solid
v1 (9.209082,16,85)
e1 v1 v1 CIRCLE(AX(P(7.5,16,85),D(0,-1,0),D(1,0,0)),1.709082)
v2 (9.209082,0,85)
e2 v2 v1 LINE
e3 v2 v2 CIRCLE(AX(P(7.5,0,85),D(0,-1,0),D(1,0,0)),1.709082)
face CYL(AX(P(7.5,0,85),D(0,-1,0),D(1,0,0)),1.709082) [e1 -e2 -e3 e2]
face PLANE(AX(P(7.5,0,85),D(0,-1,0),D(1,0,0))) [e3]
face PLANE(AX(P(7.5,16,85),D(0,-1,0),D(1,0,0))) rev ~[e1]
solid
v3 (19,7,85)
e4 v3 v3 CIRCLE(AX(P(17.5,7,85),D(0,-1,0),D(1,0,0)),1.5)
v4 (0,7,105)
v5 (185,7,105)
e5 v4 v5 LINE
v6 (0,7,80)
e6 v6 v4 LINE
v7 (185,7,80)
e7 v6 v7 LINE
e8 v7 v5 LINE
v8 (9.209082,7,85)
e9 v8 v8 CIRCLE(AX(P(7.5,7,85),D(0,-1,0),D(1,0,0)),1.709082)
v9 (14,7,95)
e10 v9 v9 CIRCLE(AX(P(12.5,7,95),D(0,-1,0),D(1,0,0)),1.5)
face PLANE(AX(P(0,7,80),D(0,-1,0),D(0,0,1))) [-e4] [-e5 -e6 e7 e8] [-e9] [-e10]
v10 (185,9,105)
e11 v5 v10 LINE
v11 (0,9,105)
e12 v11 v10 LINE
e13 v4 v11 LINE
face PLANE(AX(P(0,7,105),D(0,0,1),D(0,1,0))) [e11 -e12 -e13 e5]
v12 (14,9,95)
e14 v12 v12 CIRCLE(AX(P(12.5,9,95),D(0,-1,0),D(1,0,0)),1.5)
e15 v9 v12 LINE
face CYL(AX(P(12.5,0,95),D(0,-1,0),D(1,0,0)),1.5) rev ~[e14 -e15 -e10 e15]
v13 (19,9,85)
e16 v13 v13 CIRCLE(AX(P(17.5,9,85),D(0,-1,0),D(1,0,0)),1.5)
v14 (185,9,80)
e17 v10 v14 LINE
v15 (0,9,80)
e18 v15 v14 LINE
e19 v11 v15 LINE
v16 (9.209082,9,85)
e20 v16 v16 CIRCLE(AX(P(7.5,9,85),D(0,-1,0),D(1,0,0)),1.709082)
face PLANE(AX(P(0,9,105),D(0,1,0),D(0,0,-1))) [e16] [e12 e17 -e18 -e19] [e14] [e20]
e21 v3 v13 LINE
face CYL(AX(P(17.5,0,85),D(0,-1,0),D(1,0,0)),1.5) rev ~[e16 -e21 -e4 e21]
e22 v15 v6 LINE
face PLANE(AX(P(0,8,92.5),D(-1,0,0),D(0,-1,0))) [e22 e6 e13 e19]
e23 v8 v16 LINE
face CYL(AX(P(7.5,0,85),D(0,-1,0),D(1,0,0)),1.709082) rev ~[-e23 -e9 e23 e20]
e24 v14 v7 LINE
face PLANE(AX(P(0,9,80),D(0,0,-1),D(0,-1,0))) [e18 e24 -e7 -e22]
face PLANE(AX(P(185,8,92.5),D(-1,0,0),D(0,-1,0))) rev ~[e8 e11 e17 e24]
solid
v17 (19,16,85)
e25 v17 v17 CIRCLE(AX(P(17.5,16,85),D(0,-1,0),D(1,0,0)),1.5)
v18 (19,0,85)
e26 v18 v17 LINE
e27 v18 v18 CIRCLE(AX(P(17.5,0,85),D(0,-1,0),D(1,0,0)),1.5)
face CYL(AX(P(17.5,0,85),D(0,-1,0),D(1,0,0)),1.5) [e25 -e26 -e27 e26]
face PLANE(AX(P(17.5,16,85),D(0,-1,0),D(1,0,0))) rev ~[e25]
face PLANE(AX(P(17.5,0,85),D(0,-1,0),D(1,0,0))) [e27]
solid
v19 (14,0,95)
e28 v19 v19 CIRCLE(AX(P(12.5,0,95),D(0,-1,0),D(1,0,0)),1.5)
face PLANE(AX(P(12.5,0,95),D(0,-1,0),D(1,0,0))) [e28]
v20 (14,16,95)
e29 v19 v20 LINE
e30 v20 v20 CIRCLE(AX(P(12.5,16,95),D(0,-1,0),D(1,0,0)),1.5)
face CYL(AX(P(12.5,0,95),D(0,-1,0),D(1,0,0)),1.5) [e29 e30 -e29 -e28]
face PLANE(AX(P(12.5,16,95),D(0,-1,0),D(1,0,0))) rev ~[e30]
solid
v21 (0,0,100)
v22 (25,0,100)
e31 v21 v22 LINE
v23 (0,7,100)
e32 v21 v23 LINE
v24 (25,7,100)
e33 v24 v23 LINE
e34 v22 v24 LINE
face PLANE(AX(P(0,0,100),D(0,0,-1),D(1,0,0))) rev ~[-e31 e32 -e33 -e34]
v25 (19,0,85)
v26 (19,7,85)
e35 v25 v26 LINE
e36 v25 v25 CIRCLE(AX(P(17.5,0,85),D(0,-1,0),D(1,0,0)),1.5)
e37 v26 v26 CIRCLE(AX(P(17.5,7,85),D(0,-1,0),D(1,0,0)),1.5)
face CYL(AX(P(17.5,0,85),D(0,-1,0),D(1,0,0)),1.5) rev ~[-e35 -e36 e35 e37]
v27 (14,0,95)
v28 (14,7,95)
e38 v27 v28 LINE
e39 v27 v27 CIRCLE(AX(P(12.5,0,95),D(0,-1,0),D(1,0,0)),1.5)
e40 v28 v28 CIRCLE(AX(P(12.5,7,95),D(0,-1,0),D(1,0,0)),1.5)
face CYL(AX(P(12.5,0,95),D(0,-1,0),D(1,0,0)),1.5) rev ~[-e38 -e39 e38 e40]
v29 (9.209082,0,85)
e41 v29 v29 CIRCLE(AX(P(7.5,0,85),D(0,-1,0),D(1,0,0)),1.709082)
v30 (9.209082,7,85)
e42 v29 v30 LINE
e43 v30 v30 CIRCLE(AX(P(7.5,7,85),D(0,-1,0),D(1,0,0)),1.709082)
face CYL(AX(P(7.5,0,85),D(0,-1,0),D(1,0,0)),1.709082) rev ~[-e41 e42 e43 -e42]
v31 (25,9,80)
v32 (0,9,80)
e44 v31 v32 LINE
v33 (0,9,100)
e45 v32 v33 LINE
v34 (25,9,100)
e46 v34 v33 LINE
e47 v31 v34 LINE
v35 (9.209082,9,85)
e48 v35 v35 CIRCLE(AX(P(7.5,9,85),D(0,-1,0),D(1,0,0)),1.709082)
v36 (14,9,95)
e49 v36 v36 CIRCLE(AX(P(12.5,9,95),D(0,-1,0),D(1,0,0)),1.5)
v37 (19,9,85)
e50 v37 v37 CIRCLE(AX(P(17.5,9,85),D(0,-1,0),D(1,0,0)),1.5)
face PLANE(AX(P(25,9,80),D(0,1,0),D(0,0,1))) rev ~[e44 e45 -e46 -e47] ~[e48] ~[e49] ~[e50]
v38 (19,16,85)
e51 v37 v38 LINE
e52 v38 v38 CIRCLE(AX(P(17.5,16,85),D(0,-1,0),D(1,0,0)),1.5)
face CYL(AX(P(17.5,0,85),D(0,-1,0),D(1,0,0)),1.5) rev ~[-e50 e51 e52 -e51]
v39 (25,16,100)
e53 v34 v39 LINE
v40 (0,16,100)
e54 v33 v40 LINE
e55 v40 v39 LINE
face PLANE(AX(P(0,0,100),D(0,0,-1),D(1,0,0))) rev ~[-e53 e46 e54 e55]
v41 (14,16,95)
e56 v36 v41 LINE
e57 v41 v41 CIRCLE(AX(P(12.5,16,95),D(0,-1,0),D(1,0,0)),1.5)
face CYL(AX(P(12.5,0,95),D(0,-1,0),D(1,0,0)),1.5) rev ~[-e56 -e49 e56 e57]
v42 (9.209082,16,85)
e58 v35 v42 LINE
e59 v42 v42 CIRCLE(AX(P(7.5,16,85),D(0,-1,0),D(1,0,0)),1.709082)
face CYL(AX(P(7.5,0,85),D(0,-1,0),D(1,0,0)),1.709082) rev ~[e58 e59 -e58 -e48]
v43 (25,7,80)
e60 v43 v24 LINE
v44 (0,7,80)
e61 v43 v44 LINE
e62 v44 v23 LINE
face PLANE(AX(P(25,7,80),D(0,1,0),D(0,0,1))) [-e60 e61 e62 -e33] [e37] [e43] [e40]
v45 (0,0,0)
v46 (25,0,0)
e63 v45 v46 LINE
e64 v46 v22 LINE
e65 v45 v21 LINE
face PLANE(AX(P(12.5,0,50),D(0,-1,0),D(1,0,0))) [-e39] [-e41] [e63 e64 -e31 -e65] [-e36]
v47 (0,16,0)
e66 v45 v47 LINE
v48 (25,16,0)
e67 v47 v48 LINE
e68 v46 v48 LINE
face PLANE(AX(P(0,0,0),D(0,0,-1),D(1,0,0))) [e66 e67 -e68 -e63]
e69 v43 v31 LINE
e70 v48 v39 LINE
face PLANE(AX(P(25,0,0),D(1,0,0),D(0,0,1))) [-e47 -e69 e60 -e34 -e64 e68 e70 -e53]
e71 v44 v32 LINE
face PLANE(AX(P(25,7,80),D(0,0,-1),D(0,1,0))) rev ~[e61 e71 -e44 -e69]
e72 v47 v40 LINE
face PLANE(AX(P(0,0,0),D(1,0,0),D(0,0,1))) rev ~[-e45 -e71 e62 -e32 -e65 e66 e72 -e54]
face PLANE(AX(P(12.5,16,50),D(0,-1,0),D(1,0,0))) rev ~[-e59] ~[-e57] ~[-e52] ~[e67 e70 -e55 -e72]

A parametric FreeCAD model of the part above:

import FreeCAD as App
import Part
import Sketcher
from FreeCAD import Vector


def add_polygon(sketch, points):
    """Adds a closed chain of lines whose ends are joined by coincident constraints."""
    first, n = sketch.GeometryCount, len(points)
    for a, b in zip(points, points[1:] + points[:1]):
        sketch.addGeometry(Part.LineSegment(App.Vector(*a, 0), App.Vector(*b, 0)), False)
    for i in range(n):
        sketch.addConstraint(Sketcher.Constraint("Coincident", first + i, 2, first + (i + 1) % n, 1))

doc = App.newDocument("Part")
body = doc.addObject("PartDesign::Body", "Body")

sketch1 = doc.addObject("Sketcher::SketchObject", "Sketch")
body.addObject(sketch1)
sketch1.AttachmentSupport = (doc.XZ_Plane, [""])
sketch1.MapMode = "FlatFace"
add_polygon(sketch1, [(0, 100), (0, 0), (25, 0), (25, 100)])
sketch1.addConstraint([
    Sketcher.Constraint("Vertical", 0),
    Sketcher.Constraint("Horizontal", 1),
    Sketcher.Constraint("Vertical", 2),
    Sketcher.Constraint("Horizontal", 3),
    Sketcher.Constraint("Coincident", 0, 2, -1, 1),
    Sketcher.Constraint("DistanceX", 1, 1, 1, 2, 25.0),
    Sketcher.Constraint("DistanceY", 0, 2, 0, 1, 100.0),
])
pad1 = doc.addObject("PartDesign::Pad", "Pad")
body.addObject(pad1)
pad1.Profile = sketch1
pad1.Length = 16
pad1.Reversed = True

sketch2 = doc.addObject("Sketcher::SketchObject", "Sketch001")
body.addObject(sketch2)
sketch2.AttachmentSupport = (doc.YZ_Plane, [""])
sketch2.MapMode = "FlatFace"
sketch2.AttachmentOffset = App.Placement(Vector(0, 0, 25), App.Rotation())
add_polygon(sketch2, [(7, 100), (7, 80), (9, 80), (9, 100)])
sketch2.addConstraint([
    Sketcher.Constraint("Vertical", 0),
    Sketcher.Constraint("Horizontal", 1),
    Sketcher.Constraint("Vertical", 2),
    Sketcher.Constraint("Horizontal", 3),
    Sketcher.Constraint("DistanceX", 1, 1, 1, 2, 2.0),
    Sketcher.Constraint("DistanceY", 0, 2, 0, 1, 20.0),
    Sketcher.Constraint("DistanceX", -1, 1, 0, 2, 7.0),
    Sketcher.Constraint("DistanceY", -1, 1, 0, 2, 80.0),
])
pocket1 = doc.addObject("PartDesign::Pocket", "Pocket")
body.addObject(pocket1)
pocket1.Profile = sketch2
pocket1.Type = "ThroughAll"
body2 = doc.addObject("PartDesign::Body", "Body001")

sketch3 = doc.addObject("Sketcher::SketchObject", "Sketch002")
body2.addObject(sketch3)
sketch3.AttachmentSupport = (doc.getObject("YZ_Plane001"), [""])
sketch3.MapMode = "FlatFace"
add_polygon(sketch3, [(9, 80), (7, 80), (7, 105), (9, 105)])
sketch3.addConstraint([
    Sketcher.Constraint("Horizontal", 0),
    Sketcher.Constraint("Vertical", 1),
    Sketcher.Constraint("Horizontal", 2),
    Sketcher.Constraint("Vertical", 3),
    Sketcher.Constraint("DistanceX", 0, 2, 0, 1, 2.0),
    Sketcher.Constraint("DistanceY", 1, 1, 1, 2, 25.0),
    Sketcher.Constraint("DistanceX", -1, 1, 0, 2, 7.0),
    Sketcher.Constraint("DistanceY", -1, 1, 0, 2, 80.0),
])
pad2 = doc.addObject("PartDesign::Pad", "Pad001")
body2.addObject(pad2)
pad2.Profile = sketch3
pad2.Length = 185
body3 = doc.addObject("PartDesign::Body", "Body002")
body3.AllowCompound = True

sketch4 = doc.addObject("Sketcher::SketchObject", "Sketch003")
body3.addObject(sketch4)
sketch4.AttachmentSupport = (doc.getObject("XZ_Plane002"), [""])
sketch4.MapMode = "FlatFace"
sketch4.addGeometry([
    Part.Circle(Vector(12.5, 95, 0), Vector(0, 0, 1), 1.5),
    Part.Circle(Vector(17.5, 85, 0), Vector(0, 0, 1), 1.5),
    Part.Circle(Vector(7.5, 85, 0), Vector(0, 0, 1), 1.7),
], False)
sketch4.addConstraint([
    Sketcher.Constraint("Equal", 0, 1),
    Sketcher.Constraint("Horizontal", 1, 3, 2, 3),
    Sketcher.Constraint("Diameter", 0, 3.0),
    Sketcher.Constraint("DistanceY", -1, 1, 0, 3, 95.0),
    Sketcher.Constraint("DistanceY", -1, 1, 1, 3, 85.0),
    Sketcher.Constraint("DistanceX", 0, 3, 1, 3, 5.0),
    Sketcher.Constraint("DistanceX", 2, 3, 1, 3, 10.0),
    Sketcher.Constraint("DistanceX", -1, 1, 0, 3, 12.5),
    Sketcher.Constraint("Diameter", 2, 3.418164),
])
pad3 = doc.addObject("PartDesign::Pad", "Pad002")
body3.addObject(pad3)
pad3.Profile = sketch4
pad3.Length = 16
pad3.Reversed = True
doc.recompute()

body4 = doc.addObject("PartDesign::Body", "Body003")
body4.BaseFeature = body3
boolean = doc.addObject("PartDesign::Boolean", "Boolean")
body.addObject(boolean)
boolean.Type = "Cut"
boolean.addObjects([body4])
doc.recompute()

boolean2 = doc.addObject("PartDesign::Boolean", "Boolean001")
body2.addObject(boolean2)
boolean2.Type = "Cut"
boolean2.addObjects([body3])
body5 = doc.addObject("PartDesign::Body", "Body004")
body5.AllowCompound = True

sketch5 = doc.addObject("Sketcher::SketchObject", "Sketch004")
body5.addObject(sketch5)
sketch5.AttachmentSupport = (doc.getObject("XZ_Plane004"), [""])
sketch5.MapMode = "FlatFace"
sketch5.addGeometry([
    Part.Circle(Vector(12.5, 95, 0), Vector(0, 0, 1), 1.5),
    Part.Circle(Vector(7.5, 85, 0), Vector(0, 0, 1), 1.7),
    Part.Circle(Vector(17.5, 85, 0), Vector(0, 0, 1), 1.5),
], False)
sketch5.addConstraint([
    Sketcher.Constraint("Equal", 0, 2),
    Sketcher.Constraint("Horizontal", 1, 3, 2, 3),
    Sketcher.Constraint("Diameter", 0, 3.0),
    Sketcher.Constraint("DistanceY", -1, 1, 0, 3, 95.0),
    Sketcher.Constraint("DistanceY", -1, 1, 1, 3, 85.0),
    Sketcher.Constraint("DistanceX", 1, 3, 0, 3, 5.0),
    Sketcher.Constraint("DistanceX", 1, 3, 2, 3, 10.0),
    Sketcher.Constraint("DistanceX", -1, 1, 0, 3, 12.5),
    Sketcher.Constraint("Diameter", 1, 3.418164),
])
pad4 = doc.addObject("PartDesign::Pad", "Pad003")
body5.addObject(pad4)
pad4.Profile = sketch5
pad4.Length = 16
pad4.Reversed = True

doc.recompute()
